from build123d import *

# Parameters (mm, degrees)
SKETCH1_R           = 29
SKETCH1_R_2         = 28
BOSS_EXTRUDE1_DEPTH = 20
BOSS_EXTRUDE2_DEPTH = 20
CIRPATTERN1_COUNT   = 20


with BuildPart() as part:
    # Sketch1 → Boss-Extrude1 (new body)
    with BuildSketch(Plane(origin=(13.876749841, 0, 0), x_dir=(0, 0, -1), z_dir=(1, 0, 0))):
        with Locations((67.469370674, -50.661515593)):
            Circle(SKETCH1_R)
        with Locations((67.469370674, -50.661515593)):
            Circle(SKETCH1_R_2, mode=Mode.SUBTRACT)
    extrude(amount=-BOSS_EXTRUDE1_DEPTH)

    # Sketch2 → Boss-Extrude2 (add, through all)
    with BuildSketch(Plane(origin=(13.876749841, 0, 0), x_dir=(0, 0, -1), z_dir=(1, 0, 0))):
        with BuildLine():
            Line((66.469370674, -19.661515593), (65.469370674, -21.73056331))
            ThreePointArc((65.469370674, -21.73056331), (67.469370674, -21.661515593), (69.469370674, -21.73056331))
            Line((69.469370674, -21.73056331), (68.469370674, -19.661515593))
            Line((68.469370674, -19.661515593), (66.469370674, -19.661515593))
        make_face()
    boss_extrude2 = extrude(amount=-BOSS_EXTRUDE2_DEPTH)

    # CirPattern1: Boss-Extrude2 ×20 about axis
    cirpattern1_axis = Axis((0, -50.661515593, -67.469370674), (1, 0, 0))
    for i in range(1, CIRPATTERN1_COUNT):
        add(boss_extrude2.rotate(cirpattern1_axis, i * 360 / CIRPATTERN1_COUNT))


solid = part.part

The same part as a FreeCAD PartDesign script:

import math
import FreeCAD as App
import Part
import Sketcher

doc = App.newDocument("Part")
params = doc.addObject("Spreadsheet::Sheet", "Params")
for row, (alias, value) in enumerate([
    ("sketch1_diameter", "58 mm"),
    ("sketch1_diameter2", "56 mm"),
    ("pad1_length", "20 mm"),
    ("sketch2_radius", "29 mm"),
    ("sketch2_height", "2 mm"),
    ("pad2_length", "20 mm"),
], start=1):
    params.set(f"A{row}", alias)
    params.set(f"B{row}", "=" + value)
    params.setAlias(f"B{row}", alias)

body = doc.addObject("PartDesign::Body", "Body")

# Sketch on YZ plane
sketch1 = body.newObject("Sketcher::SketchObject", "Sketch")
sketch1.AttachmentSupport = (doc.getObject("YZ_Plane"), [""])
sketch1.MapMode = "FlatFace"
sketch1.AttachmentOffset = App.Placement(App.Vector(0, 0, 13.87675), App.Rotation())
sketch1.addGeometry(Part.Circle(App.Vector(-51, -67, 0), App.Vector(0, 0, 1), 29), False)
sketch1.addGeometry(Part.Circle(App.Vector(-51, -67, 0), App.Vector(0, 0, 1), 28), False)
sketch1.addConstraint(Sketcher.Constraint("Coincident", 1, 3, 0, 3))
sketch1.addConstraint(Sketcher.Constraint("Diameter", 0, 58.0))
sketch1.addConstraint(Sketcher.Constraint("Diameter", 1, 56.0))
sketch1.addConstraint(Sketcher.Constraint("DistanceY", 0, 3, -1, 1, 67.469371))
sketch1.addConstraint(Sketcher.Constraint("DistanceX", 0, 3, -1, 1, 50.661516))
sketch1.setExpression("Constraints[1]", "Params.sketch1_diameter")
sketch1.setExpression("Constraints[2]", "Params.sketch1_diameter2")
pad1 = body.newObject("PartDesign::Pad", "Pad")
pad1.Profile = sketch1
pad1.setExpression("Length", "Params.pad1_length")
pad1.Reversed = True

# Sketch on YZ plane
sketch2 = body.newObject("Sketcher::SketchObject", "Sketch001")
sketch2.AttachmentSupport = (doc.getObject("YZ_Plane"), [""])
sketch2.MapMode = "FlatFace"
sketch2.AttachmentOffset = App.Placement(App.Vector(0, 0, 13.87675), App.Rotation())
sketch2.addGeometry(Part.LineSegment(App.Vector(-19.7, -66.5, 0), App.Vector(-21.7, -65.5, 0)), False)
sketch2.addGeometry(Part.ArcOfCircle(Part.Circle(App.Vector(-50.7, -67.5, 0), App.Vector(0, 0, 1), 29), math.radians(-3.95), math.radians(3.95)), False)
sketch2.addGeometry(Part.LineSegment(App.Vector(-21.7, -69.5, 0), App.Vector(-19.7, -68.5, 0)), False)
sketch2.addGeometry(Part.LineSegment(App.Vector(-19.7, -68.5, 0), App.Vector(-19.7, -66.5, 0)), False)
sketch2.addConstraint(Sketcher.Constraint("Coincident", 0, 2, 1, 2))
sketch2.addConstraint(Sketcher.Constraint("Coincident", 1, 1, 2, 1))
sketch2.addConstraint(Sketcher.Constraint("Coincident", 2, 2, 3, 1))
sketch2.addConstraint(Sketcher.Constraint("Coincident", 3, 2, 0, 1))
sketch2.addConstraint(Sketcher.Constraint("Vertical", 3))
sketch2.addConstraint(Sketcher.Constraint("Vertical", 0, 2, 1, 1))
sketch2.addConstraint(Sketcher.Constraint("Equal", 0, 2))
sketch2.addConstraint(Sketcher.Constraint("Radius", 1, 29.0))
sketch2.addConstraint(Sketcher.Constraint("DistanceY", 3, 1, 3, 2, 2.0))
sketch2.addConstraint(Sketcher.Constraint("DistanceY", 1, 3, 0, 2, 2.0))
sketch2.addConstraint(Sketcher.Constraint("DistanceX", 1, 3, 2, 2, 31.0))
sketch2.addConstraint(Sketcher.Constraint("DistanceY", 1, 3, -1, 1, 67.469371))
sketch2.addConstraint(Sketcher.Constraint("DistanceX", 1, 3, -1, 1, 50.661516))
sketch2.setExpression("Constraints[7]", "Params.sketch2_radius")
sketch2.setExpression("Constraints[8]", "Params.sketch2_height")
pad2 = body.newObject("PartDesign::Pad", "Pad001")
pad2.Profile = sketch2
pad2.setExpression("Length", "Params.pad2_length")
pad2.Reversed = True
doc.recompute()

datumline = body.newObject("PartDesign::Line", "DatumLine")
datumline.Placement = App.Placement(App.Vector(0, -50.661516, -67.469371), App.Rotation(App.Vector(0, 0, 1), App.Vector(1, 0, 0)))
polarpattern = body.newObject("PartDesign::PolarPattern", "PolarPattern")
polarpattern.Originals = [pad2]
polarpattern.Axis = (datumline, [""])
polarpattern.Angle = 360
polarpattern.Occurrences = 20
body.Tip = polarpattern

doc.recompute()
